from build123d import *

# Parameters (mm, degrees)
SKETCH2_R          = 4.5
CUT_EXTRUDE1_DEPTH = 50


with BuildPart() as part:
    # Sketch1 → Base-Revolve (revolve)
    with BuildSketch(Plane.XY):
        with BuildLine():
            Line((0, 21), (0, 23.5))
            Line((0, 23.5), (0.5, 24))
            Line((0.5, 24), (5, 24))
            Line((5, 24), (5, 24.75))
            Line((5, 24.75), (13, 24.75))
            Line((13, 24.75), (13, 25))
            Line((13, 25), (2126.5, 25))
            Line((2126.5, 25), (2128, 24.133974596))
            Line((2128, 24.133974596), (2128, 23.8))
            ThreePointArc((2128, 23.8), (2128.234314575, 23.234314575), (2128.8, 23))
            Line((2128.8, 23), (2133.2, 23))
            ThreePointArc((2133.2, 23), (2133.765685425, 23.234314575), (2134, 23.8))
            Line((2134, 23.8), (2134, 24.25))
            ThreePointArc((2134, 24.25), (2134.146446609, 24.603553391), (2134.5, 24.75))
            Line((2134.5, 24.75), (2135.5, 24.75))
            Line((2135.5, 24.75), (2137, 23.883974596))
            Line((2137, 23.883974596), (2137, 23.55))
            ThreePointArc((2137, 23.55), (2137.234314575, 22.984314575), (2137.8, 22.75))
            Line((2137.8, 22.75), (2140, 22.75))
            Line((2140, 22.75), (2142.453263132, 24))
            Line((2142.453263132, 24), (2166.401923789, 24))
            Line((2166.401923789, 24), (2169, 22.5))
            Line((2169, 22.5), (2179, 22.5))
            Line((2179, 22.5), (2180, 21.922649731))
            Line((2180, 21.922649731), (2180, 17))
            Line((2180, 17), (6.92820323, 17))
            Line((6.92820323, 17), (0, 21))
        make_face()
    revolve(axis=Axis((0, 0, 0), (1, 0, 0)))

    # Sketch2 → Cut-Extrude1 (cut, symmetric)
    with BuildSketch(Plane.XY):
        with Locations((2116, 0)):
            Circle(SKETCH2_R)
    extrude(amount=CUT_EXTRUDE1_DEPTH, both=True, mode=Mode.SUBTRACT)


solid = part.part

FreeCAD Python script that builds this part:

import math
import FreeCAD as App
import Part
import Sketcher

V = App.Vector
Q = App.Units.Quantity

doc = App.newDocument("Part")
body = doc.addObject("PartDesign::Body", "Body")

# Sketch on XY plane
sketch1 = body.newObject("Sketcher::SketchObject", "Sketch")
sketch1.AttachmentSupport = (doc.getObject("XY_Plane"), [""])
sketch1.MapMode = "FlatFace"
sketch1.addGeometry([
    Part.LineSegment(V(0, 23.5, 0), V(0, 21, 0)),  # 0
    Part.LineSegment(V(0, 21, 0), V(6.93, 17, 0)),  # 1
    Part.LineSegment(V(6.93, 17, 0), V(2180, 17, 0)),  # 2
    Part.LineSegment(V(2180, 17, 0), V(2180, 21.92, 0)),  # 3
    Part.LineSegment(V(2180, 21.92, 0), V(2179, 22.5, 0)),  # 4
    Part.LineSegment(V(2179, 22.5, 0), V(2169, 22.5, 0)),  # 5
    Part.LineSegment(V(2169, 22.5, 0), V(2166.4, 24, 0)),  # 6
    Part.LineSegment(V(2166.4, 24, 0), V(2142.45, 24, 0)),  # 7
    Part.LineSegment(V(2142.45, 24, 0), V(2140, 22.75, 0)),  # 8
    Part.LineSegment(V(2140, 22.75, 0), V(2137.8, 22.75, 0)),  # 9
    Part.ArcOfCircle(Part.Circle(V(2137.8, 23.55, 0), V(0, 0, 1), 0.8), math.radians(180), math.radians(270)),  # 10
    Part.LineSegment(V(2137, 23.55, 0), V(2137, 23.88, 0)),  # 11
    Part.LineSegment(V(2137, 23.88, 0), V(2135.5, 24.75, 0)),  # 12
    Part.LineSegment(V(2135.5, 24.75, 0), V(2134.5, 24.75, 0)),  # 13
    Part.ArcOfCircle(Part.Circle(V(2134.5, 24.25, 0), V(0, 0, 1), 0.5), math.radians(90), math.radians(180)),  # 14
    Part.LineSegment(V(2134, 24.25, 0), V(2134, 23.8, 0)),  # 15
    Part.ArcOfCircle(Part.Circle(V(2133.2, 23.8, 0), V(0, 0, 1), 0.8), math.radians(-90), math.radians(0)),  # 16
    Part.LineSegment(V(2133.2, 23, 0), V(2128.8, 23, 0)),  # 17
    Part.ArcOfCircle(Part.Circle(V(2128.8, 23.8, 0), V(0, 0, 1), 0.8), math.radians(180), math.radians(270)),  # 18
    Part.LineSegment(V(2128, 23.8, 0), V(2128, 24.13, 0)),  # 19
    Part.LineSegment(V(2128, 24.13, 0), V(2126.5, 25, 0)),  # 20
    Part.LineSegment(V(2126.5, 25, 0), V(13, 25, 0)),  # 21
    Part.LineSegment(V(13, 25, 0), V(13, 24.75, 0)),  # 22
    Part.LineSegment(V(13, 24.75, 0), V(5, 24.75, 0)),  # 23
    Part.LineSegment(V(5, 24.75, 0), V(5, 24, 0)),  # 24
    Part.LineSegment(V(5, 24, 0), V(0.5, 24, 0)),  # 25
    Part.LineSegment(V(0.5, 24, 0), V(0, 23.5, 0)),  # 26
], False)
sketch1.addConstraint([
    Sketcher.Constraint("Coincident", 0, 2, 1, 1),
    Sketcher.Constraint("Coincident", 1, 2, 2, 1),
    Sketcher.Constraint("Coincident", 2, 2, 3, 1),
    Sketcher.Constraint("Coincident", 3, 2, 4, 1),
    Sketcher.Constraint("Coincident", 4, 2, 5, 1),
    Sketcher.Constraint("Coincident", 5, 2, 6, 1),
    Sketcher.Constraint("Coincident", 6, 2, 7, 1),
    Sketcher.Constraint("Coincident", 7, 2, 8, 1),
    Sketcher.Constraint("Coincident", 8, 2, 9, 1),
    Sketcher.Constraint("Tangent", 9, 2, 10, 2),
    Sketcher.Constraint("Tangent", 10, 1, 11, 1),
    Sketcher.Constraint("Coincident", 11, 2, 12, 1),
    Sketcher.Constraint("Coincident", 12, 2, 13, 1),
    Sketcher.Constraint("Tangent", 13, 2, 14, 1),
    Sketcher.Constraint("Tangent", 14, 2, 15, 1),
    Sketcher.Constraint("Tangent", 15, 2, 16, 2),
    Sketcher.Constraint("Tangent", 16, 1, 17, 1),
    Sketcher.Constraint("Tangent", 17, 2, 18, 2),
    Sketcher.Constraint("Tangent", 18, 1, 19, 1),
    Sketcher.Constraint("Coincident", 19, 2, 20, 1),
    Sketcher.Constraint("Coincident", 20, 2, 21, 1),
    Sketcher.Constraint("Coincident", 21, 2, 22, 1),
    Sketcher.Constraint("Coincident", 22, 2, 23, 1),
    Sketcher.Constraint("Coincident", 23, 2, 24, 1),
    Sketcher.Constraint("Coincident", 24, 2, 25, 1),
    Sketcher.Constraint("Coincident", 25, 2, 26, 1),
    Sketcher.Constraint("Coincident", 26, 2, 0, 1),
    Sketcher.Constraint("Vertical", 0),
    Sketcher.Constraint("Horizontal", 2),
    Sketcher.Constraint("Vertical", 3),
    Sketcher.Constraint("Horizontal", 5),
    Sketcher.Constraint("Horizontal", 7),
    Sketcher.Constraint("Horizontal", 9),
    Sketcher.Constraint("Vertical", 11),
    Sketcher.Constraint("Horizontal", 13),
    Sketcher.Constraint("Vertical", 15),
    Sketcher.Constraint("Horizontal", 17),
    Sketcher.Constraint("Vertical", 19),
    Sketcher.Constraint("Horizontal", 21),
    Sketcher.Constraint("Vertical", 22),
    Sketcher.Constraint("Horizontal", 23),
    Sketcher.Constraint("Vertical", 24),
    Sketcher.Constraint("Horizontal", 25),
    Sketcher.Constraint("Equal", 10, 16),
    Sketcher.Constraint("Equal", 16, 18),
    Sketcher.Constraint("PointOnObject", 0, 2, -2),
    Sketcher.Constraint("Parallel", 1, 4),
    Sketcher.Constraint("Parallel", 4, 6),
    Sketcher.Constraint("Parallel", 6, 12),
    Sketcher.Constraint("Parallel", 12, 20),
    Sketcher.Constraint("Horizontal", 13, 2, 22, 2),
    Sketcher.Constraint("Horizontal", 7, 2, 24, 2),
    Sketcher.Constraint("Equal", 11, 19),
    Sketcher.Constraint("Equal", 12, 20),
    Sketcher.Constraint("Radius", 10, 0.8),
    Sketcher.Constraint("Radius", 14, 0.5),
    Sketcher.Constraint("DistanceX", 5, 2, 5, 1, 10.0),
    Sketcher.Constraint("DistanceX", 13, 2, 13, 1, 1.0),
    Sketcher.Constraint("DistanceX", 23, 2, 23, 1, 8.0),
    Sketcher.Constraint("Angle", 1, Q("-30 deg")),
    Sketcher.Constraint("Angle", 8, Q("-153 deg")),
    Sketcher.Constraint("Angle", 26, Q("-135 deg")),
    Sketcher.Constraint("Distance", 1, 8.0),
    Sketcher.Constraint("Distance", 6, 3.0),
    Sketcher.Constraint("DistanceX", 9, 2, 9, 1, 2.2),
    Sketcher.Constraint("DistanceX", 17, 2, 17, 1, 4.4),
    Sketcher.Constraint("DistanceX", 21, 2, 21, 1, 2113.5),
    Sketcher.Constraint("DistanceX", 25, 2, 25, 1, 4.5),
    Sketcher.Constraint("DistanceY", 0, 2, 0, 1, 2.5),
    Sketcher.Constraint("DistanceY", -1, 1, 0, 2, 21.0),
    Sketcher.Constraint("DistanceX", -1, 1, 2, 2, 2180.0),
    Sketcher.Constraint("DistanceX", -1, 1, 4, 2, 2179.0),
    Sketcher.Constraint("DistanceY", -1, 1, 6, 2, 24.0),
    Sketcher.Constraint("DistanceX", -1, 1, 8, 2, 2140.0),
    Sketcher.Constraint("DistanceY", -1, 1, 16, 1, 23.0),
    Sketcher.Constraint("DistanceY", -1, 1, 20, 2, 25.0),
    Sketcher.Constraint("DistanceY", 15, 2, 15, 1, 0.45),
])
revolution = body.newObject("PartDesign::Revolution", "Revolution")
revolution.Profile = sketch1
revolution.ReferenceAxis = (sketch1, ["H_Axis"])
revolution.Angle = 360

# Sketch on XY plane
sketch2 = body.newObject("Sketcher::SketchObject", "Sketch001")
sketch2.AttachmentSupport = (doc.getObject("XY_Plane"), [""])
sketch2.MapMode = "FlatFace"
sketch2.addGeometry(Part.Circle(V(2116, 0, 0), V(0, 0, 1), 4.5), False)
sketch2.addConstraint([
    Sketcher.Constraint("PointOnObject", 0, 3, -1),
    Sketcher.Constraint("Diameter", 0, 9.0),
    Sketcher.Constraint("DistanceX", -1, 1, 0, 3, 2116.0),
])
pocket1 = body.newObject("PartDesign::Pocket", "Pocket")
pocket1.Profile = sketch2
pocket1.Length = 100
pocket1.Midplane = True

doc.recompute()
